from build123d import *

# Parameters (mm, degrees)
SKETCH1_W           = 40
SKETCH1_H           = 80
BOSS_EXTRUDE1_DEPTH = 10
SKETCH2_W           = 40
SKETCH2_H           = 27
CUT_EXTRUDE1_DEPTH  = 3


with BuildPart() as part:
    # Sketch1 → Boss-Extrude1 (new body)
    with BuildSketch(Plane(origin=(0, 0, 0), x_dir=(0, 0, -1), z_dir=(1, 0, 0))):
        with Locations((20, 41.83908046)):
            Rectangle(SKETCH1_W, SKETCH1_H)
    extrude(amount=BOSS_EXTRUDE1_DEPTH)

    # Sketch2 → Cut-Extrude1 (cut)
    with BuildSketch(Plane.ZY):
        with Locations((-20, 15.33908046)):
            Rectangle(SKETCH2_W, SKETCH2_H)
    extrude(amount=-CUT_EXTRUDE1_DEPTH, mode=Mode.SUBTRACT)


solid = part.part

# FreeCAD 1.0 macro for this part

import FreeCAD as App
import Part
import Sketcher
from FreeCAD import Vector

doc = App.newDocument("Part")
params = doc.addObject("Spreadsheet::Sheet", "Params")
for row, (alias, value) in enumerate([
    ("sketch1_width", "80 mm"),
    ("sketch1_height", "40 mm"),
    ("pad1_length", "10 mm"),
    ("sketch2_width", "27 mm"),
    ("sketch2_height", "40 mm"),
    ("pocket1_length", "3 mm"),
], start=1):
    params.set(f"A{row}", alias)
    params.set(f"B{row}", "=" + value)
    params.setAlias(f"B{row}", alias)

body = doc.addObject("PartDesign::Body", "Body")

# Sketch on YZ plane
sketch1 = body.newObject("Sketcher::SketchObject", "Sketch")
sketch1.AttachmentSupport = (doc.getObject("YZ_Plane"), [""])
sketch1.MapMode = "FlatFace"
sketch1.addGeometry([
    Part.LineSegment(Vector(82, 0, 0), Vector(2, 0, 0)),
    Part.LineSegment(Vector(2, 0, 0), Vector(2, -40, 0)),
    Part.LineSegment(Vector(2, -40, 0), Vector(82, -40, 0)),
    Part.LineSegment(Vector(82, -40, 0), Vector(82, 0, 0)),
], False)
sketch1.addConstraint([
    Sketcher.Constraint("Coincident", 0, 2, 1, 1),
    Sketcher.Constraint("Coincident", 1, 2, 2, 1),
    Sketcher.Constraint("Coincident", 2, 2, 3, 1),
    Sketcher.Constraint("Coincident", 3, 2, 0, 1),
    Sketcher.Constraint("Horizontal", 0),
    Sketcher.Constraint("Vertical", 1),
    Sketcher.Constraint("Horizontal", 2),
    Sketcher.Constraint("Vertical", 3),
    Sketcher.Constraint("PointOnObject", 0, 2, -1),
    Sketcher.Constraint("DistanceX", 0, 2, 0, 1, 80.0),
    Sketcher.Constraint("DistanceY", 1, 2, 1, 1, 40.0),
    Sketcher.Constraint("DistanceX", -1, 1, 0, 2, 1.83908),
])
sketch1.setExpression("Constraints[9]", "Params.sketch1_width")
sketch1.setExpression("Constraints[10]", "Params.sketch1_height")
pad1 = body.newObject("PartDesign::Pad", "Pad")
pad1.Profile = sketch1
pad1.setExpression("Length", "Params.pad1_length")

# Sketch on YZ plane
sketch2 = body.newObject("Sketcher::SketchObject", "Sketch001")
sketch2.AttachmentSupport = (doc.getObject("YZ_Plane"), [""])
sketch2.MapMode = "FlatFace"
sketch2.addGeometry([
    Part.LineSegment(Vector(29, -40, 0), Vector(2, -40, 0)),
    Part.LineSegment(Vector(2, -40, 0), Vector(2, 0, 0)),
    Part.LineSegment(Vector(2, 0, 0), Vector(29, 0, 0)),
    Part.LineSegment(Vector(29, 0, 0), Vector(29, -40, 0)),
], False)
sketch2.addConstraint([
    Sketcher.Constraint("Coincident", 0, 2, 1, 1),
    Sketcher.Constraint("Coincident", 1, 2, 2, 1),
    Sketcher.Constraint("Coincident", 2, 2, 3, 1),
    Sketcher.Constraint("Coincident", 3, 2, 0, 1),
    Sketcher.Constraint("Horizontal", 0),
    Sketcher.Constraint("Vertical", 1),
    Sketcher.Constraint("Horizontal", 2),
    Sketcher.Constraint("Vertical", 3),
    Sketcher.Constraint("PointOnObject", 1, 2, -1),
    Sketcher.Constraint("DistanceX", 0, 2, 0, 1, 27.0),
    Sketcher.Constraint("DistanceY", 1, 1, 1, 2, 40.0),
    Sketcher.Constraint("DistanceX", -1, 1, 0, 2, 1.83908),
])
sketch2.setExpression("Constraints[9]", "Params.sketch2_width")
sketch2.setExpression("Constraints[10]", "Params.sketch2_height")
pocket1 = body.newObject("PartDesign::Pocket", "Pocket")
pocket1.Profile = sketch2
pocket1.setExpression("Length", "Params.pocket1_length")
pocket1.Reversed = True

doc.recompute()
